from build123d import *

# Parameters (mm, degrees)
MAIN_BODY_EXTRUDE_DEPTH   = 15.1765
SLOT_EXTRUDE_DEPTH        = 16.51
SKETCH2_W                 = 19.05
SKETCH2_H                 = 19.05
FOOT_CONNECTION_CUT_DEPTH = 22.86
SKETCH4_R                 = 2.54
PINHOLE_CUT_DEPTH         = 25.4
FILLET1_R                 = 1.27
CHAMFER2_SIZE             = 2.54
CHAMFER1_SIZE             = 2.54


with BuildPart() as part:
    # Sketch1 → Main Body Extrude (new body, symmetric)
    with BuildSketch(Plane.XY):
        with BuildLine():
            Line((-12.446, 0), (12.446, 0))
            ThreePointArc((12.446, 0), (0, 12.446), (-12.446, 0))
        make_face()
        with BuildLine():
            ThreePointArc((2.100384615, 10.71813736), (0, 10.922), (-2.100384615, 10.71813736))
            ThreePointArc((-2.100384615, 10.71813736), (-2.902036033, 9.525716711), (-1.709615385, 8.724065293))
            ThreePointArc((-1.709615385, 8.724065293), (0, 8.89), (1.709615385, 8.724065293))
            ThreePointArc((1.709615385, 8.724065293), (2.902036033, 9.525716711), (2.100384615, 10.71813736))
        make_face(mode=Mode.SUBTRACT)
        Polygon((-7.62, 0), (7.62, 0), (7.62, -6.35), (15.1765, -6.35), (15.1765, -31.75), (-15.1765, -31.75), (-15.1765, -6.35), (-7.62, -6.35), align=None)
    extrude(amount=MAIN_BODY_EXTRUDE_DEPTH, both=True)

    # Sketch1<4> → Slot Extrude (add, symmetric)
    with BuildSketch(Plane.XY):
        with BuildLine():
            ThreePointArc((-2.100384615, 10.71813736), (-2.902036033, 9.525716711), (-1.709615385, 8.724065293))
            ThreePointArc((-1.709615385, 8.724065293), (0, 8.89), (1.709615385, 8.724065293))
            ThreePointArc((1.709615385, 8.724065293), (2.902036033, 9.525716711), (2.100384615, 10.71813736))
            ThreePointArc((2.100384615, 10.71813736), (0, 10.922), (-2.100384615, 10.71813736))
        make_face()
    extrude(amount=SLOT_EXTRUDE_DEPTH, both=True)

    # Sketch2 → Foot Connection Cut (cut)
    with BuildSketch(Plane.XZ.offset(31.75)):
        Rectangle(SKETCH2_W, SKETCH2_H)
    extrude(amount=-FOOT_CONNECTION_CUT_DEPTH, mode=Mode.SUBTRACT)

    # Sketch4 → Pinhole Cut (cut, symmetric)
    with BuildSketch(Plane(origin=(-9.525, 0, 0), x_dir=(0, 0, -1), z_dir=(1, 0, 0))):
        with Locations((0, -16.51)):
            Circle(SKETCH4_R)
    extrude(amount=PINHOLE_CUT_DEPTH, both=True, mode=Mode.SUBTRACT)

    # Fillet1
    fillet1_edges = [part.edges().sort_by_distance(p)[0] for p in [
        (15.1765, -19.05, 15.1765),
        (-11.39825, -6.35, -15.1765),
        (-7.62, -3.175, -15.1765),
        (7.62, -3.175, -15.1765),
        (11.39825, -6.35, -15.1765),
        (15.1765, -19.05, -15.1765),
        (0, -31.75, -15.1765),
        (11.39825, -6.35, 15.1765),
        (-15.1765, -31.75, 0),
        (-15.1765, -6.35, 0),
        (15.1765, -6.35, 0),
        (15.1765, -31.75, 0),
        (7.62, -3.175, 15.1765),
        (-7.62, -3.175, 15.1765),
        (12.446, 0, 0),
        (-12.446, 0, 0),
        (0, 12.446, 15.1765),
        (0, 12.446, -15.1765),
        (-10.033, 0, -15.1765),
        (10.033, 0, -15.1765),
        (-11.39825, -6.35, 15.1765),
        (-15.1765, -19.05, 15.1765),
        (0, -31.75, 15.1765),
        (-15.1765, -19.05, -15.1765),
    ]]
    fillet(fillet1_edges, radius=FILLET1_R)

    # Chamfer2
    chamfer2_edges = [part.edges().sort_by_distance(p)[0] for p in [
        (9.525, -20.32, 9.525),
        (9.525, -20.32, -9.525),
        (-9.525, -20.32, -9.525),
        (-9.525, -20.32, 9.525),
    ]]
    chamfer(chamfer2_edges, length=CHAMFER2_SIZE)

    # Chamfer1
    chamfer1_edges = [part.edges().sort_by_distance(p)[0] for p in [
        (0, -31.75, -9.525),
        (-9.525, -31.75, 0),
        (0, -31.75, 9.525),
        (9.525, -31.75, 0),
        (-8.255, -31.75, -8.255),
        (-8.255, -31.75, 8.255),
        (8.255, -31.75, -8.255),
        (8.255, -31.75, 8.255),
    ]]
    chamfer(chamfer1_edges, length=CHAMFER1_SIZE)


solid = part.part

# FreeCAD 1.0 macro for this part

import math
import FreeCAD as App
import Part
import Sketcher

V = App.Vector
Q = App.Units.Quantity


def edges_at(feature, points):
    """Names of the edges that pass closest to the given points."""
    edges = feature.Shape.Edges
    near = lambda p: min(range(len(edges)), key=lambda i: edges[i].distToShape(Part.Vertex(*p))[0])
    return sorted({f"Edge{near(p) + 1}" for p in points})


def add_polygon(sketch, points):
    """Adds a closed chain of lines whose ends are joined by coincident constraints."""
    first, n = sketch.GeometryCount, len(points)
    for a, b in zip(points, points[1:] + points[:1]):
        sketch.addGeometry(Part.LineSegment(App.Vector(*a, 0), App.Vector(*b, 0)), False)
    for i in range(n):
        sketch.addConstraint(Sketcher.Constraint("Coincident", first + i, 2, first + (i + 1) % n, 1))

doc = App.newDocument("Part")
params = doc.addObject("Spreadsheet::Sheet", "Params")
for row, (alias, value) in enumerate([
    ("sketch1_height", "1 in"),
    ("sketch1_radius", "0.49 in"),
    ("sketch1_radius2", "0.43 in"),
    ("sketch1_radius3", "0.04 in"),
    ("sketch1_width", "0.19 in"),
    ("pad1_length", "1.195 in"),
    ("sketch2_radius", "0.04 in"),
    ("sketch2_radius2", "0.35 in"),
    ("pad2_length", "1.3 in"),
    ("sketch3_width", "0.75 in"),
    ("pocket1_length", "0.9 in"),
    ("sketch4_diameter", "0.2 in"),
    ("pocket2_length", "2 in"),
    ("fillet_radius", "0.05 in"),
    ("chamfer_size", "0.1 in"),
    ("chamfer2_size", "0.1 in"),
], start=1):
    params.set(f"A{row}", alias)
    params.set(f"B{row}", "=" + value)
    params.setAlias(f"B{row}", alias)

body = doc.addObject("PartDesign::Body", "Body")

# Sketch on XY plane
sketch1 = body.newObject("Sketcher::SketchObject", "Sketch")
sketch1.AttachmentSupport = (doc.getObject("XY_Plane"), [""])
sketch1.MapMode = "FlatFace"
sketch1.addGeometry([
    Part.LineSegment(V(-12.4, 0, 0), V(-7.6, 0, 0)),  # 0
    Part.LineSegment(V(-7.6, 0, 0), V(-7.6, -6.3, 0)),  # 1
    Part.LineSegment(V(-7.6, -6.3, 0), V(-15.2, -6.3, 0)),  # 2
    Part.LineSegment(V(-15.2, -6.3, 0), V(-15.2, -31.8, 0)),  # 3
    Part.LineSegment(V(-15.2, -31.8, 0), V(15.2, -31.8, 0)),  # 4
    Part.LineSegment(V(15.2, -31.8, 0), V(15.2, -6.3, 0)),  # 5
    Part.LineSegment(V(15.2, -6.3, 0), V(7.6, -6.3, 0)),  # 6
    Part.LineSegment(V(7.6, -6.3, 0), V(7.6, 0, 0)),  # 7
    Part.LineSegment(V(7.6, 0, 0), V(12.4, 0, 0)),  # 8
    Part.ArcOfCircle(Part.Circle(V(0, 0, 0), V(0, 0, 1), 12.4), math.radians(0), math.radians(180)),  # 9
    Part.ArcOfCircle(Part.Circle(V(0, 0, 0), V(0, 0, 1), 10.9), math.radians(79), math.radians(101)),  # 10
    Part.ArcOfCircle(Part.Circle(V(1.9, 9.7, 0), V(0, 0, 1), 1), math.radians(-101), math.radians(79)),  # 11
    Part.ArcOfCircle(Part.Circle(V(0, 0, 0), V(0, 0, 1), 8.9), math.radians(79), math.radians(101)),  # 12
    Part.ArcOfCircle(Part.Circle(V(-1.9, 9.7, 0), V(0, 0, 1), 1), math.radians(101), math.radians(281)),  # 13
], False)
sketch1.addConstraint([
    Sketcher.Constraint("Coincident", 0, 2, 1, 1),
    Sketcher.Constraint("Coincident", 1, 2, 2, 1),
    Sketcher.Constraint("Coincident", 2, 2, 3, 1),
    Sketcher.Constraint("Coincident", 3, 2, 4, 1),
    Sketcher.Constraint("Coincident", 4, 2, 5, 1),
    Sketcher.Constraint("Coincident", 5, 2, 6, 1),
    Sketcher.Constraint("Coincident", 6, 2, 7, 1),
    Sketcher.Constraint("Coincident", 7, 2, 8, 1),
    Sketcher.Constraint("Coincident", 8, 2, 9, 1),
    Sketcher.Constraint("Coincident", 9, 2, 0, 1),
    Sketcher.Constraint("Tangent", 10, 1, 11, 2),
    Sketcher.Constraint("Tangent", 11, 1, 12, 1),
    Sketcher.Constraint("Tangent", 12, 2, 13, 2),
    Sketcher.Constraint("Tangent", 13, 1, 10, 2),
    Sketcher.Constraint("Horizontal", 0),
    Sketcher.Constraint("Vertical", 1),
    Sketcher.Constraint("Horizontal", 2),
    Sketcher.Constraint("Vertical", 3),
    Sketcher.Constraint("Horizontal", 4),
    Sketcher.Constraint("Vertical", 5),
    Sketcher.Constraint("Horizontal", 6),
    Sketcher.Constraint("Vertical", 7),
    Sketcher.Constraint("Horizontal", 8),
    Sketcher.Constraint("Coincident", 9, 3, -1, 1),
    Sketcher.Constraint("Coincident", 10, 3, -1, 1),
    Sketcher.Constraint("Coincident", 12, 3, -1, 1),
    Sketcher.Constraint("Symmetric", 0, 2, 7, 2, -1, 1),
    Sketcher.Constraint("Symmetric", 2, 2, 5, 2, -2),
    Sketcher.Constraint("PointOnObject", 0, 2, -1),
    Sketcher.Constraint("Horizontal", 11, 3, 13, 3),
    Sketcher.Constraint("DistanceY", 3, 2, 3, 1, Q("1 in")),
    Sketcher.Constraint("Radius", 9, Q("0.49 in")),
    Sketcher.Constraint("Radius", 10, Q("0.43 in")),
    Sketcher.Constraint("Radius", 11, Q("0.04 in")),
    Sketcher.Constraint("DistanceX", 0, 1, 0, 2, Q("0.19 in")),
    Sketcher.Constraint("DistanceY", 1, 2, 1, 1, Q("0.25 in")),
    Sketcher.Constraint("DistanceX", 4, 1, 4, 2, Q("1.195 in")),
    Sketcher.Constraint("DistanceX", 13, 3, 11, 3, Q("0.15 in")),
])
sketch1.setExpression("Constraints[30]", "Params.sketch1_height")
sketch1.setExpression("Constraints[31]", "Params.sketch1_radius")
sketch1.setExpression("Constraints[32]", "Params.sketch1_radius2")
sketch1.setExpression("Constraints[33]", "Params.sketch1_radius3")
sketch1.setExpression("Constraints[34]", "Params.sketch1_width")
pad1 = body.newObject("PartDesign::Pad", "Pad")
pad1.Profile = sketch1
pad1.setExpression("Length", "Params.pad1_length")
pad1.Midplane = True

# Sketch on XY plane
sketch2 = body.newObject("Sketcher::SketchObject", "Sketch001")
sketch2.AttachmentSupport = (doc.getObject("XY_Plane"), [""])
sketch2.MapMode = "FlatFace"
sketch2.addGeometry([
    Part.ArcOfCircle(Part.Circle(V(-1.9, 9.7, 0), V(0, 0, 1), 1), math.radians(101), math.radians(281)),
    Part.ArcOfCircle(Part.Circle(V(0, 0, 0), V(0, 0, 1), 8.9), math.radians(79), math.radians(101)),
    Part.ArcOfCircle(Part.Circle(V(1.9, 9.7, 0), V(0, 0, 1), 1), math.radians(-101), math.radians(79)),
    Part.ArcOfCircle(Part.Circle(V(0, 0, 0), V(0, 0, 1), 10.9), math.radians(79), math.radians(101)),
], False)
sketch2.addConstraint([
    Sketcher.Constraint("Tangent", 0, 2, 1, 2),
    Sketcher.Constraint("Tangent", 1, 1, 2, 1),
    Sketcher.Constraint("Tangent", 2, 2, 3, 1),
    Sketcher.Constraint("Tangent", 3, 2, 0, 1),
    Sketcher.Constraint("Coincident", 1, 3, -1, 1),
    Sketcher.Constraint("Coincident", 3, 3, -1, 1),
    Sketcher.Constraint("Horizontal", 0, 3, 2, 3),
    Sketcher.Constraint("Radius", 0, Q("0.04 in")),
    Sketcher.Constraint("Radius", 1, Q("0.35 in")),
    Sketcher.Constraint("DistanceX", 0, 3, 2, 3, Q("0.15 in")),
])
sketch2.setExpression("Constraints[7]", "Params.sketch2_radius")
sketch2.setExpression("Constraints[8]", "Params.sketch2_radius2")
pad2 = body.newObject("PartDesign::Pad", "Pad001")
pad2.Profile = sketch2
pad2.setExpression("Length", "Params.pad2_length")
pad2.Midplane = True

# Sketch on XZ plane
sketch3 = body.newObject("Sketcher::SketchObject", "Sketch002")
sketch3.AttachmentSupport = (doc.getObject("XZ_Plane"), [""])
sketch3.MapMode = "FlatFace"
sketch3.AttachmentOffset = App.Placement(V(0, 0, 1.25 * 25.4), App.Rotation())
add_polygon(sketch3, [(-10, 10), (-10, -10), (10, -10), (10, 10)])  # lines 0-3
sketch3.addConstraint([
    Sketcher.Constraint("Vertical", 0),
    Sketcher.Constraint("Horizontal", 1),
    Sketcher.Constraint("Vertical", 2),
    Sketcher.Constraint("Horizontal", 3),
    Sketcher.Constraint("Symmetric", 0, 2, 2, 2, -1, 1),
    Sketcher.Constraint("Equal", 3, 0),
    Sketcher.Constraint("DistanceX", 1, 1, 1, 2, Q("0.75 in")),
])
sketch3.setExpression("Constraints[10]", "Params.sketch3_width")
pocket1 = body.newObject("PartDesign::Pocket", "Pocket")
pocket1.Profile = sketch3
pocket1.setExpression("Length", "Params.pocket1_length")

# Sketch on YZ plane
sketch4 = body.newObject("Sketcher::SketchObject", "Sketch003")
sketch4.AttachmentSupport = (doc.getObject("YZ_Plane"), [""])
sketch4.MapMode = "FlatFace"
sketch4.AttachmentOffset = App.Placement(V(0, 0, -0.375 * 25.4), App.Rotation())
sketch4.addGeometry(Part.Circle(V(-16.5, 0, 0), V(0, 0, 1), 2.5), False)
sketch4.addConstraint([
    Sketcher.Constraint("PointOnObject", 0, 3, -1),
    Sketcher.Constraint("Diameter", 0, Q("0.2 in")),
    Sketcher.Constraint("DistanceX", 0, 3, -1, 1, Q("0.65 in")),
])
sketch4.setExpression("Constraints[1]", "Params.sketch4_diameter")
pocket2 = body.newObject("PartDesign::Pocket", "Pocket001")
pocket2.Profile = sketch4
pocket2.setExpression("Length", "Params.pocket2_length")
pocket2.Midplane = True
doc.recompute()

fillet = body.newObject("PartDesign::Fillet", "Fillet")
fillet.Base = (pocket2, edges_at(pocket2, [
    (15.177, -19.05, 15.177),
    (-11.398, -6.35, -15.177),
    (-7.62, -3.175, -15.177),
    (7.62, -3.175, -15.177),
    (11.398, -6.35, -15.177),
    (15.177, -19.05, -15.177),
    (0, -31.75, -15.177),
    (11.398, -6.35, 15.177),
    (-15.177, -31.75, 0),
    (-15.177, -6.35, 0),
    (15.177, -6.35, 0),
    (15.177, -31.75, 0),
    (7.62, -3.175, 15.177),
    (-7.62, -3.175, 15.177),
    (12.446, 0, 0),
    (-12.446, 0, 0),
    (0, 12.446, 15.177),
    (0, 12.446, -15.177),
    (-10.033, 0, -15.177),
    (10.033, 0, -15.177),
    (-11.398, -6.35, 15.177),
    (-15.177, -19.05, 15.177),
    (0, -31.75, 15.177),
    (-15.177, -19.05, -15.177),
]))
fillet.setExpression("Radius", "Params.fillet_radius")
doc.recompute()

chamfer = body.newObject("PartDesign::Chamfer", "Chamfer")
chamfer.Base = (fillet, edges_at(fillet, [
    (9.525, -20.32, 9.525),
    (9.525, -20.32, -9.525),
    (-9.525, -20.32, -9.525),
    (-9.525, -20.32, 9.525),
]))
chamfer.setExpression("Size", "Params.chamfer_size")
doc.recompute()

chamfer2 = body.newObject("PartDesign::Chamfer", "Chamfer001")
chamfer2.Base = (chamfer, edges_at(chamfer, [
    (0, -31.75, -9.525),
    (-9.525, -31.75, 0),
    (0, -31.75, 9.525),
    (9.525, -31.75, 0),
    (-8.255, -31.75, -8.255),
    (-8.255, -31.75, 8.255),
    (8.255, -31.75, -8.255),
    (8.255, -31.75, 8.255),
]))
chamfer2.setExpression("Size", "Params.chamfer2_size")

doc.recompute()
